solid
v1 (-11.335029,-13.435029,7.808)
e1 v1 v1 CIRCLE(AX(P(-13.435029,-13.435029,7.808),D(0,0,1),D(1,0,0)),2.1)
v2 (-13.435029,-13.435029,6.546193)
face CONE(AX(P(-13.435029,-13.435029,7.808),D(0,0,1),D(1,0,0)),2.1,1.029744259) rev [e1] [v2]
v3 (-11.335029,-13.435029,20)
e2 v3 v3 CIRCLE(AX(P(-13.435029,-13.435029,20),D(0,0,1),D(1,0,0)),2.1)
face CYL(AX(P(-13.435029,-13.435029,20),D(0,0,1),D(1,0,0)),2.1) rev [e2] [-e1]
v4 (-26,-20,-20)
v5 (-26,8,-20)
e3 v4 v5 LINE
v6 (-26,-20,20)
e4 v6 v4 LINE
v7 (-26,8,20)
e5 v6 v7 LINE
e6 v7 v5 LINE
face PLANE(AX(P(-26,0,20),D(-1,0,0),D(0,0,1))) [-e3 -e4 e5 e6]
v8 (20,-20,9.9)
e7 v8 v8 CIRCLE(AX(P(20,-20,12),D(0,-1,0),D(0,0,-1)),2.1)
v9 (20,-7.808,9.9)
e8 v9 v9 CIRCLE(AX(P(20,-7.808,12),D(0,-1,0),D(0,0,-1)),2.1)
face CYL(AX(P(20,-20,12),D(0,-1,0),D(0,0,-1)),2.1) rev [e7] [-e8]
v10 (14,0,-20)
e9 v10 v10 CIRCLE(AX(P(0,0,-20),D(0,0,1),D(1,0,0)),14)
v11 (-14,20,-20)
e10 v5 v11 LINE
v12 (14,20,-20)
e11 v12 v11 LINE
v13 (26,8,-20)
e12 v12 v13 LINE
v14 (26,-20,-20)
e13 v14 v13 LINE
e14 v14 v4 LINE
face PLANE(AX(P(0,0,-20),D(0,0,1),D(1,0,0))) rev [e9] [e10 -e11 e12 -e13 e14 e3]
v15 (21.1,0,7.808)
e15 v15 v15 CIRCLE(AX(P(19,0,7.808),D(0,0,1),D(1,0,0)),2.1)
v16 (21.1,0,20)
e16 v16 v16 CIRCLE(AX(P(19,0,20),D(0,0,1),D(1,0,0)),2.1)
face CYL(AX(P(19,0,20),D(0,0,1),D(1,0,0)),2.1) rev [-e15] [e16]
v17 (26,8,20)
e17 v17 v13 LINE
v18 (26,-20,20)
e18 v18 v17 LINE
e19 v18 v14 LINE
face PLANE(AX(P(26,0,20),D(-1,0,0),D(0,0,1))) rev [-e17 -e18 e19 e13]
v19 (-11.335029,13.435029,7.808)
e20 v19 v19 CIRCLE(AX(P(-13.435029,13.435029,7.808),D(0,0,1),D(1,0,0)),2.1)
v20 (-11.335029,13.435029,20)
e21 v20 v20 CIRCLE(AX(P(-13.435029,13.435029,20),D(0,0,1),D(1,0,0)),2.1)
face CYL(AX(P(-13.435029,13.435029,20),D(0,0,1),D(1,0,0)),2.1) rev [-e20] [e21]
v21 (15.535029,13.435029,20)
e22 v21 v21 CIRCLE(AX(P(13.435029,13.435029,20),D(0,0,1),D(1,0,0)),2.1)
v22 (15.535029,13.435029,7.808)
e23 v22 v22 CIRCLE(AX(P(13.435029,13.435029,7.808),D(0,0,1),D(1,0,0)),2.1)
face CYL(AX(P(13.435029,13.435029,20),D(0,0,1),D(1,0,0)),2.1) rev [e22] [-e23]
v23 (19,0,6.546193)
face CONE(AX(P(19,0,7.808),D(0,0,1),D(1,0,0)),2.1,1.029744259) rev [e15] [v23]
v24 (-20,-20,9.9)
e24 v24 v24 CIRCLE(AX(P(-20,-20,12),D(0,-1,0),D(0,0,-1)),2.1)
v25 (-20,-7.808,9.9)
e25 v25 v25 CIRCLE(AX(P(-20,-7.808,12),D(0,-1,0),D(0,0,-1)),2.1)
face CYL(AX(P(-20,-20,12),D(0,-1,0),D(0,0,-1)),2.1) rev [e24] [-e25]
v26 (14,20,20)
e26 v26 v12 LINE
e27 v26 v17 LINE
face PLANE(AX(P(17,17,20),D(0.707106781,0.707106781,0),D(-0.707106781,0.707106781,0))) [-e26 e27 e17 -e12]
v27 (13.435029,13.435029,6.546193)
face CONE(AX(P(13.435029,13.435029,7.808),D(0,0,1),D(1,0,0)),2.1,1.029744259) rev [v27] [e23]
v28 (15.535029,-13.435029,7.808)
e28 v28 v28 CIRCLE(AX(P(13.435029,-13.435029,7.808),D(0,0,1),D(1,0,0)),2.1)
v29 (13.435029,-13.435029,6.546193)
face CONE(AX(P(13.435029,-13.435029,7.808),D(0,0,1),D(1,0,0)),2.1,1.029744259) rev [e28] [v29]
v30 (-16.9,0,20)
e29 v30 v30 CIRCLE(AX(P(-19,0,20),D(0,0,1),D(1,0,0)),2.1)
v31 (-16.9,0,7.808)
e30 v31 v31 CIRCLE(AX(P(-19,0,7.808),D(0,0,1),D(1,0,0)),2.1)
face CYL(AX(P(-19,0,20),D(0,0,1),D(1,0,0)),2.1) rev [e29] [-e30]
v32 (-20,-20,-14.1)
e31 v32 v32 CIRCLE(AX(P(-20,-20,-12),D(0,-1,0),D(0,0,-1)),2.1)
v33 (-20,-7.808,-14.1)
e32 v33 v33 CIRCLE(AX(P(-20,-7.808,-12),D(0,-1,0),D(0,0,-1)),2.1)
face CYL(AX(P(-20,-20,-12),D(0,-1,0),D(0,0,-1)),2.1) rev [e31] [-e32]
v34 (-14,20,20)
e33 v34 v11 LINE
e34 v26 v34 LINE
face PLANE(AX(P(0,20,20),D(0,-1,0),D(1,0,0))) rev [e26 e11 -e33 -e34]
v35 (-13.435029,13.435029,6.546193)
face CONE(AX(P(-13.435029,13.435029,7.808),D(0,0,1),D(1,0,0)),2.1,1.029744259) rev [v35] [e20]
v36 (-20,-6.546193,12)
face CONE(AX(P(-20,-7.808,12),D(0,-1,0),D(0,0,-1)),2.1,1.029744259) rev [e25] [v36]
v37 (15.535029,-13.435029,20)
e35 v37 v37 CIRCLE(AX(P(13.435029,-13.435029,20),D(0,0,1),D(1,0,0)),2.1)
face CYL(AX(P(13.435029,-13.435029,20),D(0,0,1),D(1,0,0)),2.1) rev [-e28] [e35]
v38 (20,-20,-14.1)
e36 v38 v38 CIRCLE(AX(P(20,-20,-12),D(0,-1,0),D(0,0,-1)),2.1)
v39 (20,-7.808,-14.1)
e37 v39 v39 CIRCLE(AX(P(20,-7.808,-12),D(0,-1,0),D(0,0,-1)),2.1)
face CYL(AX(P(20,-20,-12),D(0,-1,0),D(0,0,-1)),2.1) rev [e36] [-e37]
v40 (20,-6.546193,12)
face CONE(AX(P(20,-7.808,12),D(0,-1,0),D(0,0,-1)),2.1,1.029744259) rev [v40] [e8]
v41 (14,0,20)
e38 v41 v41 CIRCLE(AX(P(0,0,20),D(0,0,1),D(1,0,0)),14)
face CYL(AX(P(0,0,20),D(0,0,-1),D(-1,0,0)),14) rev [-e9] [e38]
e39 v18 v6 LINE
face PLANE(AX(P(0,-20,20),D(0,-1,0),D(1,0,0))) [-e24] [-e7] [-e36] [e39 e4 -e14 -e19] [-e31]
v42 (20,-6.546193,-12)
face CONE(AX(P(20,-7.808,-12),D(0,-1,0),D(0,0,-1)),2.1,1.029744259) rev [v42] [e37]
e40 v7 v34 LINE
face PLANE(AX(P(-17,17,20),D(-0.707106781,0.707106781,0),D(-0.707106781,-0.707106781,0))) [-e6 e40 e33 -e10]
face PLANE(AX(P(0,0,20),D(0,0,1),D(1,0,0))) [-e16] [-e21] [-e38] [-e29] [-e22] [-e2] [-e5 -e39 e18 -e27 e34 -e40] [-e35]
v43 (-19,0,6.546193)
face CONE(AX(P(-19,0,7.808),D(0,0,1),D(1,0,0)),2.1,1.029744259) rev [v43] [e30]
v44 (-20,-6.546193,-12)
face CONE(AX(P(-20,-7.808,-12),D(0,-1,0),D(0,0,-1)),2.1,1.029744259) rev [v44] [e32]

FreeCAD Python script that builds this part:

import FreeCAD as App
import Part
import Sketcher
Q = App.Units.Quantity

doc = App.newDocument("Part")
body = doc.addObject("PartDesign::Body", "Body")

# Sketch on XY plane
sketch1 = body.newObject("Sketcher::SketchObject", "Sketch")
sketch1.AttachmentSupport = (doc.getObject("XY_Plane"), [""])
sketch1.MapMode = "FlatFace"
sketch1.addGeometry(Part.LineSegment(App.Vector(-14, 20, 0), App.Vector(-26, 8, 0)), False)
sketch1.addGeometry(Part.LineSegment(App.Vector(-26, 8, 0), App.Vector(-26, -20, 0)), False)
sketch1.addGeometry(Part.LineSegment(App.Vector(-26, -20, 0), App.Vector(26, -20, 0)), False)
sketch1.addGeometry(Part.LineSegment(App.Vector(26, -20, 0), App.Vector(26, 8, 0)), False)
sketch1.addGeometry(Part.LineSegment(App.Vector(26, 8, 0), App.Vector(14, 20, 0)), False)
sketch1.addGeometry(Part.LineSegment(App.Vector(14, 20, 0), App.Vector(-14, 20, 0)), False)
sketch1.addGeometry(Part.Circle(App.Vector(0, 0, 0), App.Vector(0, 0, 1), 14), False)
sketch1.addConstraint(Sketcher.Constraint("Coincident", 0, 2, 1, 1))
sketch1.addConstraint(Sketcher.Constraint("Coincident", 1, 2, 2, 1))
sketch1.addConstraint(Sketcher.Constraint("Coincident", 2, 2, 3, 1))
sketch1.addConstraint(Sketcher.Constraint("Coincident", 3, 2, 4, 1))
sketch1.addConstraint(Sketcher.Constraint("Coincident", 4, 2, 5, 1))
sketch1.addConstraint(Sketcher.Constraint("Coincident", 5, 2, 0, 1))
sketch1.addConstraint(Sketcher.Constraint("Vertical", 1))
sketch1.addConstraint(Sketcher.Constraint("Horizontal", 2))
sketch1.addConstraint(Sketcher.Constraint("Vertical", 3))
sketch1.addConstraint(Sketcher.Constraint("Horizontal", 5))
sketch1.addConstraint(Sketcher.Constraint("Coincident", 6, 3, -1, 1))
sketch1.addConstraint(Sketcher.Constraint("Symmetric", 0, 2, 3, 2, -2))
sketch1.addConstraint(Sketcher.Constraint("Perpendicular", 0, 4))
sketch1.addConstraint(Sketcher.Constraint("Equal", 5, 1))
sketch1.addConstraint(Sketcher.Constraint("Equal", 0, 4))
sketch1.addConstraint(Sketcher.Constraint("Diameter", 6, Q("28 mm")))
sketch1.addConstraint(Sketcher.Constraint("DistanceX", 2, 1, 2, 2, Q("52 mm")))
sketch1.addConstraint(Sketcher.Constraint("DistanceX", 5, 2, 5, 1, Q("28 mm")))
sketch1.addConstraint(Sketcher.Constraint("DistanceY", -1, 1, 0, 2, Q("8 mm")))
pad1 = body.newObject("PartDesign::Pad", "Pad")
pad1.Profile = sketch1
pad1.Length = 40
pad1.Midplane = True

# Sketch on XY plane
sketch2 = body.newObject("Sketcher::SketchObject", "Sketch001")
sketch2.AttachmentSupport = (doc.getObject("XY_Plane"), [""])
sketch2.MapMode = "FlatFace"
sketch2.AttachmentOffset = App.Placement(App.Vector(0, 0, 20), App.Rotation())
sketch2.addGeometry(Part.Circle(App.Vector(0, 0, 0), App.Vector(0, 0, 1), 2.1), False)
sketch2.addGeometry(Part.Circle(App.Vector(19, 0, 0), App.Vector(0, 0, 1), 2.1), False)
sketch2.addGeometry(Part.Circle(App.Vector(-19, 0, 0), App.Vector(0, 0, 1), 2.1), False)
sketch2.addGeometry(Part.Circle(App.Vector(-13.435029, 13.435029, 0), App.Vector(0, 0, 1), 2.1), False)
sketch2.addGeometry(Part.Circle(App.Vector(13.435029, -13.435029, 0), App.Vector(0, 0, 1), 2.1), False)
sketch2.addGeometry(Part.Circle(App.Vector(13.435029, 13.435029, 0), App.Vector(0, 0, 1), 2.1), False)
sketch2.addGeometry(Part.Circle(App.Vector(-13.435029, -13.435029, 0), App.Vector(0, 0, 1), 2.1), False)
sketch2.addConstraint(Sketcher.Constraint("Coincident", 0, 3, -1, 1))
sketch2.addConstraint(Sketcher.Constraint("Equal", 0, 1))
sketch2.addConstraint(Sketcher.Constraint("Equal", 1, 2))
sketch2.addConstraint(Sketcher.Constraint("Equal", 2, 3))
sketch2.addConstraint(Sketcher.Constraint("Equal", 3, 4))
sketch2.addConstraint(Sketcher.Constraint("Equal", 4, 5))
sketch2.addConstraint(Sketcher.Constraint("Equal", 5, 6))
sketch2.addConstraint(Sketcher.Constraint("Symmetric", 1, 3, 2, 3, -1, 1))
sketch2.addConstraint(Sketcher.Constraint("Symmetric", 3, 3, 4, 3, -1, 1))
sketch2.addConstraint(Sketcher.Constraint("Symmetric", 5, 3, 6, 3, -1, 1))
sketch2.addConstraint(Sketcher.Constraint("Symmetric", 3, 3, 5, 3, -2))
sketch2.addConstraint(Sketcher.Constraint("PointOnObject", 1, 3, -1))
sketch2.addConstraint(Sketcher.Constraint("Diameter", 0, Q("4.2 mm")))
sketch2.addConstraint(Sketcher.Constraint("DistanceX", -1, 1, 1, 3, Q("19 mm")))
sketch2.addConstraint(Sketcher.Constraint("DistanceX", 3, 3, -1, 1, Q("13.435029 mm")))
sketch2.addConstraint(Sketcher.Constraint("DistanceY", -1, 1, 3, 3, Q("13.435029 mm")))
doc.recompute()
hole = body.newObject("PartDesign::Hole", "Hole")
hole.Profile = sketch2
hole.ThreadType = "None"
hole.Diameter = 4.2
hole.DepthType = "Dimension"
hole.Depth = 12.192
hole.DrillPoint = "Angled"
hole.DrillPointAngle = 118

# Sketch on XZ plane
sketch3 = body.newObject("Sketcher::SketchObject", "Sketch002")
sketch3.AttachmentSupport = (doc.getObject("XZ_Plane"), [""])
sketch3.MapMode = "FlatFace"
sketch3.AttachmentOffset = App.Placement(App.Vector(0, 0, 20), App.Rotation())
sketch3.addGeometry(Part.Circle(App.Vector(-20, 12, 0), App.Vector(0, 0, 1), 2.1), False)
sketch3.addGeometry(Part.Circle(App.Vector(20, 12, 0), App.Vector(0, 0, 1), 2.1), False)
sketch3.addGeometry(Part.Circle(App.Vector(20, -12, 0), App.Vector(0, 0, 1), 2.1), False)
sketch3.addGeometry(Part.Circle(App.Vector(-20, -12, 0), App.Vector(0, 0, 1), 2.1), False)
sketch3.addConstraint(Sketcher.Constraint("Equal", 0, 1))
sketch3.addConstraint(Sketcher.Constraint("Equal", 1, 2))
sketch3.addConstraint(Sketcher.Constraint("Equal", 2, 3))
sketch3.addConstraint(Sketcher.Constraint("Symmetric", 0, 3, 2, 3, -1, 1))
sketch3.addConstraint(Sketcher.Constraint("Symmetric", 1, 3, 3, 3, -1, 1))
sketch3.addConstraint(Sketcher.Constraint("Symmetric", 0, 3, 1, 3, -2))
sketch3.addConstraint(Sketcher.Constraint("Diameter", 0, Q("4.2 mm")))
sketch3.addConstraint(Sketcher.Constraint("DistanceX", 0, 3, -1, 1, Q("20 mm")))
sketch3.addConstraint(Sketcher.Constraint("DistanceY", -1, 1, 0, 3, Q("12 mm")))
doc.recompute()
hole2 = body.newObject("PartDesign::Hole", "Hole001")
hole2.Profile = sketch3
hole2.ThreadType = "None"
hole2.Diameter = 4.2
hole2.DepthType = "Dimension"
hole2.Depth = 12.192
hole2.DrillPoint = "Angled"
hole2.DrillPointAngle = 118

doc.recompute()
